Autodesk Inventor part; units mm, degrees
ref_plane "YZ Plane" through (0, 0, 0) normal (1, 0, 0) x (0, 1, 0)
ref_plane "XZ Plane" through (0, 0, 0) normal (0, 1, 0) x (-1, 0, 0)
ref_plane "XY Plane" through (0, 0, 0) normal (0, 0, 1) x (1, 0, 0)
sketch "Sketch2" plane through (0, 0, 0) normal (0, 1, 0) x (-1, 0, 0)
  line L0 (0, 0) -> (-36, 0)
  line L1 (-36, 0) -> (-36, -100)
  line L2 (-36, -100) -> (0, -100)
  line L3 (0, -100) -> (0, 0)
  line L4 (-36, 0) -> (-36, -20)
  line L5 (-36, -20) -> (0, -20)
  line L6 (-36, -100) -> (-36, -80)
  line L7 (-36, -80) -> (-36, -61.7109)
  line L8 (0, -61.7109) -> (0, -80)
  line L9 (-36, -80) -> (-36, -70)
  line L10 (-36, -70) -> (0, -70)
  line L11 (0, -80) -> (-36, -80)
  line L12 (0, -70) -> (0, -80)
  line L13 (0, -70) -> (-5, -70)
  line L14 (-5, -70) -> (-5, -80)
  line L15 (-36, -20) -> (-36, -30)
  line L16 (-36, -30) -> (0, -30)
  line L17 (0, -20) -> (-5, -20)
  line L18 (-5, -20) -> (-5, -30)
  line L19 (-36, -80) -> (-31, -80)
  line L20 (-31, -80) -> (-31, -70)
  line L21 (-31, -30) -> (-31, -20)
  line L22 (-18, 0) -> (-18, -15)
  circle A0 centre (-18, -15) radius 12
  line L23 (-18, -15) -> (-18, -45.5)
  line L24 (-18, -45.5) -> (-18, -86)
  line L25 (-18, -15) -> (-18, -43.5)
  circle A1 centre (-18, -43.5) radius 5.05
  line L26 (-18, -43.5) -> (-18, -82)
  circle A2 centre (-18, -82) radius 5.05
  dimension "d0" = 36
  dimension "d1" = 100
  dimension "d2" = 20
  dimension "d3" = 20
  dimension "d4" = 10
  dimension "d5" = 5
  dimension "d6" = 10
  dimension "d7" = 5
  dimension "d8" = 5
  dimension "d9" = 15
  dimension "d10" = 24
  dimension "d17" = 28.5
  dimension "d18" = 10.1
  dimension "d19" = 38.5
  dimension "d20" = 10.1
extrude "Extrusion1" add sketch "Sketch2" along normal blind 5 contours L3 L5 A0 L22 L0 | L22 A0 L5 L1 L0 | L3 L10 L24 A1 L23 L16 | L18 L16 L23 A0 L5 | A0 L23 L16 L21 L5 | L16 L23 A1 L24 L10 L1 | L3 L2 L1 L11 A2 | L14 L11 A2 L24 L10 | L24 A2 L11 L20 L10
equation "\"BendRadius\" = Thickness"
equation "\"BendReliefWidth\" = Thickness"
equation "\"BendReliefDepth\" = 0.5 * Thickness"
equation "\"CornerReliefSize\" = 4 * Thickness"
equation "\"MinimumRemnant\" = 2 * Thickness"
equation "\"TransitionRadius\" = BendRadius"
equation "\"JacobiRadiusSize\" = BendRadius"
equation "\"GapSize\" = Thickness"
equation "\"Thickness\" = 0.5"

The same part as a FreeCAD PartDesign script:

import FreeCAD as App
import Part
import Sketcher
from FreeCAD import Vector

doc = App.newDocument("Part")
body = doc.addObject("PartDesign::Body", "Body")

# Sketch on XZ plane
sketch1 = body.newObject("Sketcher::SketchObject", "Sketch")
sketch1.AttachmentSupport = (doc.getObject("XZ_Plane"), [""])
sketch1.MapMode = "FlatFace"
sketch1.addGeometry([
    Part.LineSegment(Vector(0, -20, 0), Vector(0, 0, 0)),  # 0
    Part.LineSegment(Vector(0, 0, 0), Vector(36, 0, 0)),  # 1
    Part.LineSegment(Vector(36, 0, 0), Vector(36, -20, 0)),  # 2
    Part.LineSegment(Vector(36, -20, 0), Vector(31, -20, 0)),  # 3
    Part.LineSegment(Vector(31, -20, 0), Vector(31, -30, 0)),  # 4
    Part.LineSegment(Vector(31, -30, 0), Vector(36, -30, 0)),  # 5
    Part.LineSegment(Vector(36, -30, 0), Vector(36, -70, 0)),  # 6
    Part.LineSegment(Vector(36, -70, 0), Vector(31, -70, 0)),  # 7
    Part.LineSegment(Vector(31, -70, 0), Vector(31, -80, 0)),  # 8
    Part.LineSegment(Vector(31, -80, 0), Vector(36, -80, 0)),  # 9
    Part.LineSegment(Vector(36, -80, 0), Vector(36, -100, 0)),  # 10
    Part.LineSegment(Vector(36, -100, 0), Vector(0, -100, 0)),  # 11
    Part.LineSegment(Vector(0, -100, 0), Vector(0, -80, 0)),  # 12
    Part.LineSegment(Vector(0, -80, 0), Vector(5, -80, 0)),  # 13
    Part.LineSegment(Vector(5, -80, 0), Vector(5, -70, 0)),  # 14
    Part.LineSegment(Vector(5, -70, 0), Vector(0, -70, 0)),  # 15
    Part.LineSegment(Vector(0, -70, 0), Vector(0, -30, 0)),  # 16
    Part.LineSegment(Vector(0, -30, 0), Vector(5, -30, 0)),  # 17
    Part.LineSegment(Vector(5, -30, 0), Vector(5, -20, 0)),  # 18
    Part.LineSegment(Vector(5, -20, 0), Vector(0, -20, 0)),  # 19
    Part.Circle(Vector(18, -15, 0), Vector(0, 0, 1), 12),  # 20
    Part.Circle(Vector(18, -43.5, 0), Vector(0, 0, 1), 5.05),  # 21
    Part.Circle(Vector(18, -82, 0), Vector(0, 0, 1), 5.05),  # 22
], False)
sketch1.addConstraint([
    Sketcher.Constraint("Coincident", 0, 2, 1, 1),
    Sketcher.Constraint("Coincident", 1, 2, 2, 1),
    Sketcher.Constraint("Coincident", 2, 2, 3, 1),
    Sketcher.Constraint("Coincident", 3, 2, 4, 1),
    Sketcher.Constraint("Coincident", 4, 2, 5, 1),
    Sketcher.Constraint("Coincident", 5, 2, 6, 1),
    Sketcher.Constraint("Coincident", 6, 2, 7, 1),
    Sketcher.Constraint("Coincident", 7, 2, 8, 1),
    Sketcher.Constraint("Coincident", 8, 2, 9, 1),
    Sketcher.Constraint("Coincident", 9, 2, 10, 1),
    Sketcher.Constraint("Coincident", 10, 2, 11, 1),
    Sketcher.Constraint("Coincident", 11, 2, 12, 1),
    Sketcher.Constraint("Coincident", 12, 2, 13, 1),
    Sketcher.Constraint("Coincident", 13, 2, 14, 1),
    Sketcher.Constraint("Coincident", 14, 2, 15, 1),
    Sketcher.Constraint("Coincident", 15, 2, 16, 1),
    Sketcher.Constraint("Coincident", 16, 2, 17, 1),
    Sketcher.Constraint("Coincident", 17, 2, 18, 1),
    Sketcher.Constraint("Coincident", 18, 2, 19, 1),
    Sketcher.Constraint("Coincident", 19, 2, 0, 1),
    Sketcher.Constraint("Vertical", 0),
    Sketcher.Constraint("Horizontal", 1),
    Sketcher.Constraint("Vertical", 2),
    Sketcher.Constraint("Horizontal", 3),
    Sketcher.Constraint("Vertical", 4),
    Sketcher.Constraint("Horizontal", 5),
    Sketcher.Constraint("Vertical", 6),
    Sketcher.Constraint("Horizontal", 7),
    Sketcher.Constraint("Vertical", 8),
    Sketcher.Constraint("Horizontal", 9),
    Sketcher.Constraint("Vertical", 10),
    Sketcher.Constraint("Horizontal", 11),
    Sketcher.Constraint("Vertical", 12),
    Sketcher.Constraint("Horizontal", 13),
    Sketcher.Constraint("Vertical", 14),
    Sketcher.Constraint("Horizontal", 15),
    Sketcher.Constraint("Vertical", 16),
    Sketcher.Constraint("Horizontal", 17),
    Sketcher.Constraint("Vertical", 18),
    Sketcher.Constraint("Horizontal", 19),
    Sketcher.Constraint("Coincident", 0, 2, -1, 1),
    Sketcher.Constraint("Equal", 21, 22),
    Sketcher.Constraint("PointOnObject", 11, 2, -2),
    Sketcher.Constraint("PointOnObject", 15, 2, -2),
    Sketcher.Constraint("Horizontal", 9, 2, 12, 2),
    Sketcher.Constraint("Horizontal", 7, 2, 14, 2),
    Sketcher.Constraint("Horizontal", 5, 2, 16, 2),
    Sketcher.Constraint("Horizontal", 3, 2, 18, 2),
    Sketcher.Constraint("Vertical", 20, 3, 21, 3),
    Sketcher.Constraint("Vertical", 21, 3, 22, 3),
    Sketcher.Constraint("Vertical", 2, 2, 5, 2),
    Sketcher.Constraint("Vertical", 4, 2, 7, 2),
    Sketcher.Constraint("Vertical", 6, 2, 9, 2),
    Sketcher.Constraint("Vertical", 14, 2, 17, 2),
    Sketcher.Constraint("Equal", 9, 13),
    Sketcher.Constraint("Equal", 4, 8),
    Sketcher.Constraint("Equal", 2, 10),
    Sketcher.Constraint("Diameter", 20, 24.0),
    Sketcher.Constraint("Diameter", 21, 10.1),
    Sketcher.Constraint("DistanceX", 1, 1, 1, 2, 36.0),
    Sketcher.Constraint("DistanceX", 3, 2, 3, 1, 5.0),
    Sketcher.Constraint("DistanceY", 0, 1, 0, 2, 20.0),
    Sketcher.Constraint("DistanceY", 4, 2, 4, 1, 10.0),
    Sketcher.Constraint("DistanceY", 20, 3, -1, 1, 15.0),
    Sketcher.Constraint("DistanceY", 10, 2, -1, 1, 100.0),
    Sketcher.Constraint("DistanceY", 21, 3, 20, 3, 28.5),
    Sketcher.Constraint("DistanceY", 22, 3, 21, 3, 38.5),
    Sketcher.Constraint("DistanceX", -1, 1, 20, 3, 18.0),
])
pad1 = body.newObject("PartDesign::Pad", "Pad")
pad1.Profile = sketch1
pad1.Length = 5
pad1.Reversed = True

doc.recompute()
